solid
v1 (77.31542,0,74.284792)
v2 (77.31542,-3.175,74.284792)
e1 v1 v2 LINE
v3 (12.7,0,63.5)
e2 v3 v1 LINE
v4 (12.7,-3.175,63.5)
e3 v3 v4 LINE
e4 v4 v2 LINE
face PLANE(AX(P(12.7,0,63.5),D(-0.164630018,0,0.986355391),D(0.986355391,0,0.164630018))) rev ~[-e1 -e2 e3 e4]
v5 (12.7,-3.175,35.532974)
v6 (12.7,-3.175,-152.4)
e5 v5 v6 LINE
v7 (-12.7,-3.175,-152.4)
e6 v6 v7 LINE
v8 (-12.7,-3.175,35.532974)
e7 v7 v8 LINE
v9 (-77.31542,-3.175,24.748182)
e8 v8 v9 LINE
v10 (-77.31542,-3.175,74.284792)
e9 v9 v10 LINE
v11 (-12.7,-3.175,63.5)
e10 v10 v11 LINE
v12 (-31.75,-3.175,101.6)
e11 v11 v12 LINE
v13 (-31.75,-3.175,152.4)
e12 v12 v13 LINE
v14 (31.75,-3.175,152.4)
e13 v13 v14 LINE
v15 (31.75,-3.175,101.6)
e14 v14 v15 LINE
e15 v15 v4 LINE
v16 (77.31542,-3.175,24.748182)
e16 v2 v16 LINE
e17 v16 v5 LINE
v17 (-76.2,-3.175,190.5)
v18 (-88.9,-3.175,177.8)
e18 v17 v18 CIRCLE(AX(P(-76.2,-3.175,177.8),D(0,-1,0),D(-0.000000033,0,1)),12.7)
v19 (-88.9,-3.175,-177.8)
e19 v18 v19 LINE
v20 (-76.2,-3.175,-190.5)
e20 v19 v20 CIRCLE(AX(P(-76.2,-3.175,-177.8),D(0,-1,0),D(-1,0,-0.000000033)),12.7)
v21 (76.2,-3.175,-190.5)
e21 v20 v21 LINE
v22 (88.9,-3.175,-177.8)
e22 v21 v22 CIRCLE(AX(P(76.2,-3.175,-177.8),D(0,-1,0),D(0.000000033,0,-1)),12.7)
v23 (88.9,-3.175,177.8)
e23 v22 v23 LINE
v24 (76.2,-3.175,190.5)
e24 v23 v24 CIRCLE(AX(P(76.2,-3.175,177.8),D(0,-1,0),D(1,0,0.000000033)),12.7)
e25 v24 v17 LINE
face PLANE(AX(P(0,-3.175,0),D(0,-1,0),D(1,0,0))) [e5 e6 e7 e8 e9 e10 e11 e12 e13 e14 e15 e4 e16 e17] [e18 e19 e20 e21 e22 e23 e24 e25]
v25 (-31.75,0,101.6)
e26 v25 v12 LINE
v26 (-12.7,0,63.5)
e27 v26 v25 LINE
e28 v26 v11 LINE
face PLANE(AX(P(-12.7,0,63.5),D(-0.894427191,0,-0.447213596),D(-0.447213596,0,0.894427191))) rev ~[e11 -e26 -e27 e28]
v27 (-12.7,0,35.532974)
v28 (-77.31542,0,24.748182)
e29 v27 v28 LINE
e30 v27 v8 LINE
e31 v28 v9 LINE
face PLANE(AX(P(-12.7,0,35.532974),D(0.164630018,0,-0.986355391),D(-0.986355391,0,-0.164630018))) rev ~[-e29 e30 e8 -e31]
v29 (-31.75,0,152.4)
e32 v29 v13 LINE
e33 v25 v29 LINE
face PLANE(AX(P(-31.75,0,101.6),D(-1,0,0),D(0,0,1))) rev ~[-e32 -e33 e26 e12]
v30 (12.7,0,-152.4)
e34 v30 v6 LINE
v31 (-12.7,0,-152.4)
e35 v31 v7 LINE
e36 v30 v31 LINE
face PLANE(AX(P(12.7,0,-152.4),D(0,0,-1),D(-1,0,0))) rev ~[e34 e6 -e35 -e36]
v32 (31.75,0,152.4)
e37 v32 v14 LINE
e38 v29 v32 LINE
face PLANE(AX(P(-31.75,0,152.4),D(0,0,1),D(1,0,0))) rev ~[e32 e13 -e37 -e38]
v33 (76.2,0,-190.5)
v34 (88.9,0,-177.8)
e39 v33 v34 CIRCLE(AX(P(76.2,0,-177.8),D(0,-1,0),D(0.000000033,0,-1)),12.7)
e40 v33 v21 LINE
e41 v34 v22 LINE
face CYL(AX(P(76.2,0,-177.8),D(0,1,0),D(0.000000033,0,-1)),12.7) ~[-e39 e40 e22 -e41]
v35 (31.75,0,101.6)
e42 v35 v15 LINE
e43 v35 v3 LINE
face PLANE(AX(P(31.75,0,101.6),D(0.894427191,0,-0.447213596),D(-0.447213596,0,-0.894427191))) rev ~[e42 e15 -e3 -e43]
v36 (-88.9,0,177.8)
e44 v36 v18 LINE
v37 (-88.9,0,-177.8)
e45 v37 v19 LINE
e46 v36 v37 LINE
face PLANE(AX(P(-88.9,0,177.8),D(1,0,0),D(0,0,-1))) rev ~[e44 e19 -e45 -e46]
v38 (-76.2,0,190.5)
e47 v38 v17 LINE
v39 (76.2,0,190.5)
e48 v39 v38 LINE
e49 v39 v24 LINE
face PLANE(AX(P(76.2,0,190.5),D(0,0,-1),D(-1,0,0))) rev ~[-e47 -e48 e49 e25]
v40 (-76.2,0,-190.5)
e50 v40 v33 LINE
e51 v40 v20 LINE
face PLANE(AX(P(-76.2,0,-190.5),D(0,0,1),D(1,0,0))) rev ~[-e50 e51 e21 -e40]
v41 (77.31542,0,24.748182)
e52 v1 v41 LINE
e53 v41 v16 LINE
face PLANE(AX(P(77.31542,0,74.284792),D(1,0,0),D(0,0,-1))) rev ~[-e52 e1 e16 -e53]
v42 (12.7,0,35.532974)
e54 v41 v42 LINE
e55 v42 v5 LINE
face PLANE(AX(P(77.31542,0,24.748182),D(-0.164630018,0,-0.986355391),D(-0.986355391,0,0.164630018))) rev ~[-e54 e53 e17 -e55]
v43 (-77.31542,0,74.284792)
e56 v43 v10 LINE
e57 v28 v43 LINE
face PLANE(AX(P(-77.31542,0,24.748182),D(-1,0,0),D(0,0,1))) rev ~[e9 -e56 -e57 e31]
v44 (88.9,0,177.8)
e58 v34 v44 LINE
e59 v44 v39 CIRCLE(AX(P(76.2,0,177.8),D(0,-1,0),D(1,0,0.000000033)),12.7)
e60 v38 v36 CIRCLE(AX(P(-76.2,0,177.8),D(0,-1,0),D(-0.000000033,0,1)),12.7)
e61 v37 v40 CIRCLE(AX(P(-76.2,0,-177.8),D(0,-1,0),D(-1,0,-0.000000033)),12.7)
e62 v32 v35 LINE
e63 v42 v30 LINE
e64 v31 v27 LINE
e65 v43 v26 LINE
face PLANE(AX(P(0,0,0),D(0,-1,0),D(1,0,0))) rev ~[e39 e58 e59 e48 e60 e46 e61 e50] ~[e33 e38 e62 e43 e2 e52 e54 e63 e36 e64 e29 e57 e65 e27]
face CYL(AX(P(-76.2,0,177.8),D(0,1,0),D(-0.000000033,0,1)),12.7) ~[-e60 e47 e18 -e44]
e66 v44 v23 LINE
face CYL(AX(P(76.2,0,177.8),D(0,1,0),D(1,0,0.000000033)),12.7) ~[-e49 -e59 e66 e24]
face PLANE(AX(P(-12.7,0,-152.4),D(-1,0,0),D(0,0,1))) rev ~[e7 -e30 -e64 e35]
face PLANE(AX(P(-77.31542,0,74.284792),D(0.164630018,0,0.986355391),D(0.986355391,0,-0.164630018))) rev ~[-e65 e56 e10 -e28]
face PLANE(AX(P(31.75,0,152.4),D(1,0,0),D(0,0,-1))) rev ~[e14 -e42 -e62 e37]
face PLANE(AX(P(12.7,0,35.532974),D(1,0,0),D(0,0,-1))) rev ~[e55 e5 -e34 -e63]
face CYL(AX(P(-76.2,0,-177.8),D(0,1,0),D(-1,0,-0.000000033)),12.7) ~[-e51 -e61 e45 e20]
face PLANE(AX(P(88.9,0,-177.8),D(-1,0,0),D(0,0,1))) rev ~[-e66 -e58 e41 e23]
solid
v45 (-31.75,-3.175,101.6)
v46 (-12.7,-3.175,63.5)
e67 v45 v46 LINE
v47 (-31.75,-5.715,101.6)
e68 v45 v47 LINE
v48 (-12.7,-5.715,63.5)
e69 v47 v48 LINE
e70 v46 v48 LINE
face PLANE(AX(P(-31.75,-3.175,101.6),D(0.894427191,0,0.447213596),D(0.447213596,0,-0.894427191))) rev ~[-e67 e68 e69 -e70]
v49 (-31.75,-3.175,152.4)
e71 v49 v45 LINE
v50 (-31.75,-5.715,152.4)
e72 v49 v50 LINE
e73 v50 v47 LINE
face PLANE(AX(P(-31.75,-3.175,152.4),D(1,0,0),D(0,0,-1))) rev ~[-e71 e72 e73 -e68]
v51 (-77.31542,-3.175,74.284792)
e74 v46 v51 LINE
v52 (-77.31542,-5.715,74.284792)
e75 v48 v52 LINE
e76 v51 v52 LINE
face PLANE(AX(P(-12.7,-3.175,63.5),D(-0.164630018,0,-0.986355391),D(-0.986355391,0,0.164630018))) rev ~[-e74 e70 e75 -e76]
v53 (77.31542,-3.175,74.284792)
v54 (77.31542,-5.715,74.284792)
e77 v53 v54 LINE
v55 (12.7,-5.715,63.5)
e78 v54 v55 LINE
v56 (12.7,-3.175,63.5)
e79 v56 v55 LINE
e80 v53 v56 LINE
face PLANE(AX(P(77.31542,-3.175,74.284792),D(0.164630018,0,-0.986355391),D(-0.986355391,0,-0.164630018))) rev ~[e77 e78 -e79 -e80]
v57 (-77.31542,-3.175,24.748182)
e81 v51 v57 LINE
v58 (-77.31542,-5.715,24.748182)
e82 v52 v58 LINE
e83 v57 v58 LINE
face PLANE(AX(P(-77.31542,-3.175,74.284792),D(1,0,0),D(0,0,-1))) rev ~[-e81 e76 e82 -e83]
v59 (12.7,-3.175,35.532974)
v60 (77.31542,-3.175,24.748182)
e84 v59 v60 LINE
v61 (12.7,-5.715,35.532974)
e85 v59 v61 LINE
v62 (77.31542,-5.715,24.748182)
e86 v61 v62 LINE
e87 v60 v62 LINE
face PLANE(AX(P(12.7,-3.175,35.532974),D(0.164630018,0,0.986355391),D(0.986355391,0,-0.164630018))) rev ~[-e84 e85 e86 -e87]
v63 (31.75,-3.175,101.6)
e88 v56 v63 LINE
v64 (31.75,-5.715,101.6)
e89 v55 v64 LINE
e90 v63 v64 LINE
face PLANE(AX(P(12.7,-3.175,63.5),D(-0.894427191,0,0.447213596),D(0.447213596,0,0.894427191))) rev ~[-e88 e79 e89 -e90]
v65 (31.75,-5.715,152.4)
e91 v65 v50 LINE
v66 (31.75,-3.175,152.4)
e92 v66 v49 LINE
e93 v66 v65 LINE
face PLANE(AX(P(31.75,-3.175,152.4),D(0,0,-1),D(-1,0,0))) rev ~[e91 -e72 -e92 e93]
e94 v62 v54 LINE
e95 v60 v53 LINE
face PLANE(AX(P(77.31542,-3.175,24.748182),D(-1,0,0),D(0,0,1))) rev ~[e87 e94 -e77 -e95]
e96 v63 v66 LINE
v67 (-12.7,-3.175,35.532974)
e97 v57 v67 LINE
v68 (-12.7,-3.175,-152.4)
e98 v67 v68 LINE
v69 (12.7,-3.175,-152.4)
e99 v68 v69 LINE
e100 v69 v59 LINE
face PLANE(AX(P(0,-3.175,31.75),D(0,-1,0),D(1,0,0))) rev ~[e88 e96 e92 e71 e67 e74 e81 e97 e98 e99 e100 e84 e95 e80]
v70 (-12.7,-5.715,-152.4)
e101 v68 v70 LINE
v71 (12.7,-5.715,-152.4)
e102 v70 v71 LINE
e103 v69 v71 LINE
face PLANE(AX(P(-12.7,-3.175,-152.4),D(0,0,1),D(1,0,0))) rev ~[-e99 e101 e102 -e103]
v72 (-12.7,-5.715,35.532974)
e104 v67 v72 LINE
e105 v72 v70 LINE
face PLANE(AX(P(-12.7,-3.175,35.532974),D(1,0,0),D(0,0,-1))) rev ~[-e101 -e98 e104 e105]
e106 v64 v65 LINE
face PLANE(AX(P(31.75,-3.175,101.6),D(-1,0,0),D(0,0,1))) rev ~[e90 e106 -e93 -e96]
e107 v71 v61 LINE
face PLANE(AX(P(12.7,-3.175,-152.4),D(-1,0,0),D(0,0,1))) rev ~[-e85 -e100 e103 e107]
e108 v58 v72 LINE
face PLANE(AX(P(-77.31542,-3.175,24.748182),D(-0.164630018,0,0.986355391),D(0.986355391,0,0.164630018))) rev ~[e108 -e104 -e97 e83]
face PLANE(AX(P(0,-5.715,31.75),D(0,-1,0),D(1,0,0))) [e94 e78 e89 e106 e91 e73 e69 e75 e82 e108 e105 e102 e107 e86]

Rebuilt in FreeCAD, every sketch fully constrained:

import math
import FreeCAD as App
import Part
import Sketcher
Q = App.Units.Quantity


def add_polygon(sketch, points):
    """Adds a closed chain of lines whose ends are joined by coincident constraints."""
    first, n = sketch.GeometryCount, len(points)
    for a, b in zip(points, points[1:] + points[:1]):
        sketch.addGeometry(Part.LineSegment(App.Vector(*a, 0), App.Vector(*b, 0)), False)
    for i in range(n):
        sketch.addConstraint(Sketcher.Constraint("Coincident", first + i, 2, first + (i + 1) % n, 1))

doc = App.newDocument("Part")
body = doc.addObject("PartDesign::Body", "Body")

sketch1 = body.newObject("Sketcher::SketchObject", "Sketch")
sketch1.AttachmentSupport = (doc.getObject("XZ_Plane"), [""])
sketch1.MapMode = "FlatFace"
sketch1.addGeometry(Part.LineSegment(App.Vector(76.2, 190.5, 0), App.Vector(-76.2, 190.5, 0)), False)
sketch1.addGeometry(Part.ArcOfCircle(Part.Circle(App.Vector(-76.2, 177.8, 0), App.Vector(0, 0, 1), 12.7), math.radians(90.000002), math.radians(179.999998)), False)
sketch1.addGeometry(Part.LineSegment(App.Vector(-88.9, 177.8, 0), App.Vector(-88.9, -177.8, 0)), False)
sketch1.addGeometry(Part.ArcOfCircle(Part.Circle(App.Vector(-76.2, -177.8, 0), App.Vector(0, 0, 1), 12.7), math.radians(-179.999998), math.radians(-90.000002)), False)
sketch1.addGeometry(Part.LineSegment(App.Vector(-76.2, -190.5, 0), App.Vector(76.2, -190.5, 0)), False)
sketch1.addGeometry(Part.ArcOfCircle(Part.Circle(App.Vector(76.2, -177.8, 0), App.Vector(0, 0, 1), 12.7), math.radians(-89.999998), math.radians(-0.000002)), False)
sketch1.addGeometry(Part.LineSegment(App.Vector(88.9, -177.8, 0), App.Vector(88.9, 177.8, 0)), False)
sketch1.addGeometry(Part.ArcOfCircle(Part.Circle(App.Vector(76.2, 177.8, 0), App.Vector(0, 0, 1), 12.7), math.radians(0.000002), math.radians(89.999998)), False)
add_polygon(sketch1, [(12.7, -152.4), (-12.7, -152.4), (-12.7, 35.532974), (-77.31542, 24.748182), (-77.31542, 74.284792), (-12.7, 63.5), (-31.75, 101.6), (-31.75, 152.4), (31.75, 152.4), (31.75, 101.6), (12.7, 63.5), (77.31542, 74.284792), (77.31542, 24.748182), (12.7, 35.532974)])
sketch1.addConstraint([
    Sketcher.Constraint("Tangent", 0, 2, 1, 1),
    Sketcher.Constraint("Tangent", 1, 2, 2, 1),
    Sketcher.Constraint("Tangent", 2, 2, 3, 1),
    Sketcher.Constraint("Tangent", 3, 2, 4, 1),
    Sketcher.Constraint("Tangent", 4, 2, 5, 1),
    Sketcher.Constraint("Tangent", 5, 2, 6, 1),
    Sketcher.Constraint("Tangent", 6, 2, 7, 1),
    Sketcher.Constraint("Tangent", 7, 2, 0, 1),
    Sketcher.Constraint("Horizontal", 0),
    Sketcher.Constraint("Vertical", 2),
    Sketcher.Constraint("Horizontal", 4),
    Sketcher.Constraint("Vertical", 6),
    Sketcher.Constraint("Horizontal", 8),
    Sketcher.Constraint("Vertical", 9),
    Sketcher.Constraint("Vertical", 11),
    Sketcher.Constraint("Vertical", 14),
    Sketcher.Constraint("Horizontal", 15),
    Sketcher.Constraint("Vertical", 16),
    Sketcher.Constraint("Vertical", 19),
    Sketcher.Constraint("Vertical", 21),
    Sketcher.Constraint("Equal", 1, 3),
    Sketcher.Constraint("Equal", 3, 5),
    Sketcher.Constraint("Equal", 5, 7),
    Sketcher.Constraint("Symmetric", 1, 3, 5, 3, -1, 1),
    Sketcher.Constraint("Symmetric", 13, 2, 16, 2, -2),
    Sketcher.Constraint("Symmetric", 12, 2, 17, 2, -2),
    Sketcher.Constraint("Symmetric", 11, 2, 18, 2, -2),
    Sketcher.Constraint("Symmetric", 9, 2, 20, 2, -2),
    Sketcher.Constraint("Parallel", 10, 18),
    Sketcher.Constraint("Parallel", 12, 20),
    Sketcher.Constraint("Vertical", 9, 2, 12, 2),
    Sketcher.Constraint("Radius", 1, Q("0.5 in")),
    Sketcher.Constraint("DistanceX", 0, 2, 0, 1, Q("6 in")),
    Sketcher.Constraint("DistanceX", 8, 2, 8, 1, Q("1 in")),
    Sketcher.Constraint("DistanceY", 2, 2, 2, 1, Q("14 in")),
    Sketcher.Constraint("DistanceY", 14, 1, 14, 2, Q("2 in")),
    Sketcher.Constraint("DistanceX", 15, 1, 15, 2, Q("2.5 in")),
    Sketcher.Constraint("DistanceY", 8, 2, -1, 1, Q("6 in")),
    Sketcher.Constraint("DistanceY", -1, 1, 13, 2, Q("4 in")),
    Sketcher.Constraint("DistanceY", -1, 1, 12, 2, Q("2.5 in")),
    Sketcher.Constraint("DistanceY", 11, 1, 11, 2, Q("49.53661 mm")),
    Sketcher.Constraint("Distance", 10, Q("65.509268 mm")),
    Sketcher.Constraint("DistanceY", 9, 1, 9, 2, Q("187.932974 mm")),
])
pad1 = body.newObject("PartDesign::Pad", "Pad")
pad1.Profile = sketch1
pad1.Length = Q("0.125 in")
body2 = doc.addObject("PartDesign::Body", "Body001")

sketch2 = body2.newObject("Sketcher::SketchObject", "Sketch001")
sketch2.AttachmentSupport = (doc.getObject("XZ_Plane001"), [""])
sketch2.MapMode = "FlatFace"
sketch2.AttachmentOffset = App.Placement(App.Vector(0, 0, 0.125 * 25.4), App.Rotation())
add_polygon(sketch2, [(-12.7, 63.5), (-77.31542, 74.284792), (-77.31542, 24.748182), (-12.7, 35.532974), (-12.7, -152.4), (12.7, -152.4), (12.7, 35.532974), (77.31542, 24.748182), (77.31542, 74.284792), (12.7, 63.5), (31.75, 101.6), (31.75, 152.4), (-31.75, 152.4), (-31.75, 101.6)])
sketch2.addConstraint([
    Sketcher.Constraint("Vertical", 1),
    Sketcher.Constraint("Vertical", 3),
    Sketcher.Constraint("Horizontal", 4),
    Sketcher.Constraint("Vertical", 5),
    Sketcher.Constraint("Vertical", 7),
    Sketcher.Constraint("Vertical", 10),
    Sketcher.Constraint("Horizontal", 11),
    Sketcher.Constraint("Vertical", 12),
    Sketcher.Constraint("Symmetric", 2, 2, 5, 2, -2),
    Sketcher.Constraint("Symmetric", 1, 2, 6, 2, -2),
    Sketcher.Constraint("Symmetric", 9, 2, 12, 2, -2),
    Sketcher.Constraint("Symmetric", 8, 2, 13, 2, -2),
    Sketcher.Constraint("Parallel", 0, 6),
    Sketcher.Constraint("Parallel", 2, 8),
    Sketcher.Constraint("Vertical", 5, 2, 8, 2),
    Sketcher.Constraint("DistanceX", 4, 1, 4, 2, Q("1 in")),
    Sketcher.Constraint("DistanceY", 10, 1, 10, 2, Q("2 in")),
    Sketcher.Constraint("DistanceX", 11, 2, 11, 1, Q("2.5 in")),
    Sketcher.Constraint("DistanceY", 3, 2, -1, 1, Q("6 in")),
    Sketcher.Constraint("DistanceY", -1, 1, 9, 2, Q("4 in")),
    Sketcher.Constraint("DistanceY", -1, 1, 8, 2, Q("2.5 in")),
    Sketcher.Constraint("DistanceY", 1, 2, 1, 1, Q("49.53661 mm")),
    Sketcher.Constraint("Distance", 0, Q("65.509268 mm")),
    Sketcher.Constraint("DistanceY", 3, 2, 3, 1, Q("187.932974 mm")),
])
pad2 = body2.newObject("PartDesign::Pad", "Pad001")
pad2.Profile = sketch2
pad2.Length = Q("0.1 in")

doc.recompute()
